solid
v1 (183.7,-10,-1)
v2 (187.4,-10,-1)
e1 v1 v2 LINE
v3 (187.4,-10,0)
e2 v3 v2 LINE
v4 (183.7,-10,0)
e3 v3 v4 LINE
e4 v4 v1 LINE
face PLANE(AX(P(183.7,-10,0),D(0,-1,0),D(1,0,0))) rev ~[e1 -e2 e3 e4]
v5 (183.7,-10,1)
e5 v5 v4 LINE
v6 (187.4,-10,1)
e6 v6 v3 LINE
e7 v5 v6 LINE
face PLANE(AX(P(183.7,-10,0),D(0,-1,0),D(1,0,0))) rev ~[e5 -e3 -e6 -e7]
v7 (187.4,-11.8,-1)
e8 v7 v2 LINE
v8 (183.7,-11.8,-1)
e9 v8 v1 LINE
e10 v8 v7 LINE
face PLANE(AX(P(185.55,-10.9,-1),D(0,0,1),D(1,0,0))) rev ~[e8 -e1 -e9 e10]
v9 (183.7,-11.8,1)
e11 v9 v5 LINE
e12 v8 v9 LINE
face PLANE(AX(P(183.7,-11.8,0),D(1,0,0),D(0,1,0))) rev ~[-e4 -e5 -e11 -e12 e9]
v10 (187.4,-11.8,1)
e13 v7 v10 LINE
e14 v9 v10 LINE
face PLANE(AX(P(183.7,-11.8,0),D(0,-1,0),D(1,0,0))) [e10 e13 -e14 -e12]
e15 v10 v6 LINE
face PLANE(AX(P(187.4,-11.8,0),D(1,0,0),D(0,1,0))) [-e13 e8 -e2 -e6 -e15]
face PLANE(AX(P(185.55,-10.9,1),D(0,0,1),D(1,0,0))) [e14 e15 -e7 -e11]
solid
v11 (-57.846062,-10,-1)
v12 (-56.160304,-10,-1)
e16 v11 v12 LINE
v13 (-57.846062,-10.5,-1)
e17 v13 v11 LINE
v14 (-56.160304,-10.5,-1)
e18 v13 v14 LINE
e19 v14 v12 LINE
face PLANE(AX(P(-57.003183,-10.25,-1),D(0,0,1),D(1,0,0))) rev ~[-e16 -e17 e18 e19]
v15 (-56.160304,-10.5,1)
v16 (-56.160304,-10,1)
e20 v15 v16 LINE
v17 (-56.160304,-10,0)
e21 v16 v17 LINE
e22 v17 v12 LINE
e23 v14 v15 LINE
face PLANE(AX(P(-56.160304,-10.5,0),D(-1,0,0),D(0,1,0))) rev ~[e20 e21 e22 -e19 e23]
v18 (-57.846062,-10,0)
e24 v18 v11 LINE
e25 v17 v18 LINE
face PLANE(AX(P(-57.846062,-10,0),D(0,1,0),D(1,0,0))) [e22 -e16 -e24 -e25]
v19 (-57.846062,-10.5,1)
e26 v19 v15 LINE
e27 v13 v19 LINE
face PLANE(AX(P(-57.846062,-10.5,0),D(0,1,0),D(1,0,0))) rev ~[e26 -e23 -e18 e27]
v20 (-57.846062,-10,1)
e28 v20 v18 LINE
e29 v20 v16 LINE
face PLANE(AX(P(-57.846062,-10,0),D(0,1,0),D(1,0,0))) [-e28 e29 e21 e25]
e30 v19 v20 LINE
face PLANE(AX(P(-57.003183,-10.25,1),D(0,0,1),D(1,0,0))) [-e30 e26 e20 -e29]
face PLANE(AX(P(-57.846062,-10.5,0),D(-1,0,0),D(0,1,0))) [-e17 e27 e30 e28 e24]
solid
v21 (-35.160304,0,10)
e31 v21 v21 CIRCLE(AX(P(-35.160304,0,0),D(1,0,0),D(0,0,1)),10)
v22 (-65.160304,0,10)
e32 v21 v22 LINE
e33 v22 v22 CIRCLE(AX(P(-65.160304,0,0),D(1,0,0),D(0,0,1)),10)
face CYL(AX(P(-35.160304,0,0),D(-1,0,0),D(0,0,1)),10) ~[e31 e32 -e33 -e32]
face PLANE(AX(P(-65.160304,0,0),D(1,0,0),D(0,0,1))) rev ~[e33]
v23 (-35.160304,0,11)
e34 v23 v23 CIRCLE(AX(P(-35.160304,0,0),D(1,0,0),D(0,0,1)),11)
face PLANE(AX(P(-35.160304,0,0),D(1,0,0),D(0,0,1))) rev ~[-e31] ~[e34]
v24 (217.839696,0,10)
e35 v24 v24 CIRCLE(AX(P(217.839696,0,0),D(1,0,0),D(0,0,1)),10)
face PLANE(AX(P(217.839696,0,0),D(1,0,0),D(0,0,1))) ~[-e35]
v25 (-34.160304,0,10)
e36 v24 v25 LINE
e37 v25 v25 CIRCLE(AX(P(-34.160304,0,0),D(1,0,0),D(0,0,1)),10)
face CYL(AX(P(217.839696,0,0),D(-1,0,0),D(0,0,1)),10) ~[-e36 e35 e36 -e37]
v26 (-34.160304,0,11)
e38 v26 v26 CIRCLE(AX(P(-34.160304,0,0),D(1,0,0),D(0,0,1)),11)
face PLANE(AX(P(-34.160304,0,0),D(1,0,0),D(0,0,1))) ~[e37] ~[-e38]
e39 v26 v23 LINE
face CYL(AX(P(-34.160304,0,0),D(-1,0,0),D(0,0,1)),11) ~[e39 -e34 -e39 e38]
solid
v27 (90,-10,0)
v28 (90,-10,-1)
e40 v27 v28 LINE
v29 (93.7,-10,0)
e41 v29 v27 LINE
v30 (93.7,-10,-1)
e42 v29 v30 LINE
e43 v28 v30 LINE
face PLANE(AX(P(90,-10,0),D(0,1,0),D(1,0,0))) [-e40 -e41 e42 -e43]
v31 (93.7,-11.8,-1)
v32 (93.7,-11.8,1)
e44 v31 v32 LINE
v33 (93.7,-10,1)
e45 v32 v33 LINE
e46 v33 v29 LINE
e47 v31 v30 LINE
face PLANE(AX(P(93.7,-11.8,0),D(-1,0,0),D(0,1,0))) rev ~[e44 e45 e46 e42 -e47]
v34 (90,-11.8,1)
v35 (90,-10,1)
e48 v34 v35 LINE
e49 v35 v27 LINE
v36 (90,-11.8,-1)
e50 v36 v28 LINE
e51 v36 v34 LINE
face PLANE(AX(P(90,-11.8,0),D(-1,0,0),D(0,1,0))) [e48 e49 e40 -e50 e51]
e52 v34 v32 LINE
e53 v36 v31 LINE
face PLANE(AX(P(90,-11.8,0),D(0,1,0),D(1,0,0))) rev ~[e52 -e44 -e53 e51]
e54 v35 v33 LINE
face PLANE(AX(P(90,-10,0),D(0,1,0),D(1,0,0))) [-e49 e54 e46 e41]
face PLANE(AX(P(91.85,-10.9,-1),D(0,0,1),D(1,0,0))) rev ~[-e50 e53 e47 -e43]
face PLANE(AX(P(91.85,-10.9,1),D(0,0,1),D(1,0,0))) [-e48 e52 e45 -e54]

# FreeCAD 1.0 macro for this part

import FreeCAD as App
import Part
import Sketcher
from FreeCAD import Vector

doc = App.newDocument("Part")
body = doc.addObject("PartDesign::Body", "Body")
body.AllowCompound = True

# Sketch on XZ plane
sketch1 = doc.addObject("Sketcher::SketchObject", "Sketch")
body.addObject(sketch1)
sketch1.AttachmentSupport = (doc.XZ_Plane, [""])
sketch1.MapMode = "FlatFace"
sketch1.addGeometry([
    Part.LineSegment(Vector(-34.2, 10, 0), Vector(-34.2, 11, 0)),  # 0
    Part.LineSegment(Vector(-34.2, 11, 0), Vector(-35.2, 11, 0)),  # 1
    Part.LineSegment(Vector(-35.2, 11, 0), Vector(-35.2, 10, 0)),  # 2
    Part.LineSegment(Vector(-35.2, 10, 0), Vector(-65.2, 10, 0)),  # 3
    Part.LineSegment(Vector(-65.2, 10, 0), Vector(-65.2, 0, 0)),  # 4
    Part.LineSegment(Vector(-65.2, 0, 0), Vector(217.8, 0, 0)),  # 5
    Part.LineSegment(Vector(217.8, 0, 0), Vector(217.8, 10, 0)),  # 6
    Part.LineSegment(Vector(217.8, 10, 0), Vector(-34.2, 10, 0)),  # 7
], False)
sketch1.addConstraint([
    Sketcher.Constraint("Coincident", 0, 2, 1, 1),
    Sketcher.Constraint("Coincident", 1, 2, 2, 1),
    Sketcher.Constraint("Coincident", 2, 2, 3, 1),
    Sketcher.Constraint("Coincident", 3, 2, 4, 1),
    Sketcher.Constraint("Coincident", 4, 2, 5, 1),
    Sketcher.Constraint("Coincident", 5, 2, 6, 1),
    Sketcher.Constraint("Coincident", 6, 2, 7, 1),
    Sketcher.Constraint("Coincident", 7, 2, 0, 1),
    Sketcher.Constraint("Vertical", 0),
    Sketcher.Constraint("Horizontal", 1),
    Sketcher.Constraint("Vertical", 2),
    Sketcher.Constraint("Horizontal", 3),
    Sketcher.Constraint("Vertical", 4),
    Sketcher.Constraint("Horizontal", 5),
    Sketcher.Constraint("Vertical", 6),
    Sketcher.Constraint("Horizontal", 7),
    Sketcher.Constraint("PointOnObject", 4, 2, -1),
    Sketcher.Constraint("Horizontal", 3, 2, 6, 2),
    Sketcher.Constraint("Equal", 1, 0),
    Sketcher.Constraint("DistanceX", 1, 2, 1, 1, 1.0),
    Sketcher.Constraint("DistanceX", 3, 2, 3, 1, 30.0),
    Sketcher.Constraint("DistanceX", 5, 1, 5, 2, 283.0),
    Sketcher.Constraint("DistanceY", 4, 2, 4, 1, 10.0),
    Sketcher.Constraint("DistanceX", 0, 2, -1, 1, 34.160304),
])
revolution = doc.addObject("PartDesign::Revolution", "Revolution")
body.addObject(revolution)
revolution.Profile = sketch1
revolution.ReferenceAxis = (sketch1, ["H_Axis"])
revolution.Angle = 360

# Sketch on XY plane
sketch2 = doc.addObject("Sketcher::SketchObject", "Sketch001")
body.addObject(sketch2)
sketch2.AttachmentSupport = (doc.XY_Plane, [""])
sketch2.MapMode = "FlatFace"
sketch2.addGeometry([
    Part.LineSegment(Vector(-57.8, -10, 0), Vector(-57.8, -10.5, 0)),  # 0
    Part.LineSegment(Vector(-57.8, -10.5, 0), Vector(-56.2, -10.5, 0)),  # 1
    Part.LineSegment(Vector(-56.2, -10.5, 0), Vector(-56.2, -10, 0)),  # 2
    Part.LineSegment(Vector(-56.2, -10, 0), Vector(-57.8, -10, 0)),  # 3
    Part.LineSegment(Vector(90, -10, 0), Vector(90, -11.8, 0)),  # 4
    Part.LineSegment(Vector(90, -11.8, 0), Vector(93.7, -11.8, 0)),  # 5
    Part.LineSegment(Vector(93.7, -11.8, 0), Vector(93.7, -10, 0)),  # 6
    Part.LineSegment(Vector(93.7, -10, 0), Vector(90, -10, 0)),  # 7
    Part.LineSegment(Vector(183.7, -10, 0), Vector(183.7, -11.8, 0)),  # 8
    Part.LineSegment(Vector(183.7, -11.8, 0), Vector(187.4, -11.8, 0)),  # 9
    Part.LineSegment(Vector(187.4, -11.8, 0), Vector(187.4, -10, 0)),  # 10
    Part.LineSegment(Vector(187.4, -10, 0), Vector(183.7, -10, 0)),  # 11
], False)
sketch2.addConstraint([
    Sketcher.Constraint("Coincident", 0, 2, 1, 1),
    Sketcher.Constraint("Coincident", 1, 2, 2, 1),
    Sketcher.Constraint("Coincident", 2, 2, 3, 1),
    Sketcher.Constraint("Coincident", 3, 2, 0, 1),
    Sketcher.Constraint("Coincident", 4, 2, 5, 1),
    Sketcher.Constraint("Coincident", 5, 2, 6, 1),
    Sketcher.Constraint("Coincident", 6, 2, 7, 1),
    Sketcher.Constraint("Coincident", 7, 2, 4, 1),
    Sketcher.Constraint("Coincident", 8, 2, 9, 1),
    Sketcher.Constraint("Coincident", 9, 2, 10, 1),
    Sketcher.Constraint("Coincident", 10, 2, 11, 1),
    Sketcher.Constraint("Coincident", 11, 2, 8, 1),
    Sketcher.Constraint("Vertical", 0),
    Sketcher.Constraint("Horizontal", 1),
    Sketcher.Constraint("Vertical", 2),
    Sketcher.Constraint("Horizontal", 3),
    Sketcher.Constraint("Vertical", 4),
    Sketcher.Constraint("Horizontal", 5),
    Sketcher.Constraint("Vertical", 6),
    Sketcher.Constraint("Horizontal", 7),
    Sketcher.Constraint("Vertical", 8),
    Sketcher.Constraint("Horizontal", 9),
    Sketcher.Constraint("Vertical", 10),
    Sketcher.Constraint("Horizontal", 11),
    Sketcher.Constraint("Horizontal", 3, 2, 6, 2),
    Sketcher.Constraint("Horizontal", 5, 2, 8, 2),
    Sketcher.Constraint("Horizontal", 7, 2, 10, 2),
    Sketcher.Constraint("Equal", 7, 9),
    Sketcher.Constraint("DistanceX", 5, 1, 5, 2, 3.7),
    Sketcher.Constraint("DistanceY", 0, 2, 0, 1, 0.5),
    Sketcher.Constraint("DistanceY", 4, 2, 4, 1, 1.8),
    Sketcher.Constraint("DistanceY", 2, 2, -1, 1, 10.0),
    Sketcher.Constraint("DistanceX", -1, 1, 4, 2, 90.0),
    Sketcher.Constraint("DistanceX", 5, 2, 8, 2, 90.0),
    Sketcher.Constraint("DistanceX", 1, 1, 1, 2, 1.685757),
    Sketcher.Constraint("DistanceX", 0, 2, -1, 1, 57.846062),
])
pad1 = doc.addObject("PartDesign::Pad", "Pad")
body.addObject(pad1)
pad1.Profile = sketch2
pad1.Length = 2
pad1.Midplane = True

doc.recompute()
